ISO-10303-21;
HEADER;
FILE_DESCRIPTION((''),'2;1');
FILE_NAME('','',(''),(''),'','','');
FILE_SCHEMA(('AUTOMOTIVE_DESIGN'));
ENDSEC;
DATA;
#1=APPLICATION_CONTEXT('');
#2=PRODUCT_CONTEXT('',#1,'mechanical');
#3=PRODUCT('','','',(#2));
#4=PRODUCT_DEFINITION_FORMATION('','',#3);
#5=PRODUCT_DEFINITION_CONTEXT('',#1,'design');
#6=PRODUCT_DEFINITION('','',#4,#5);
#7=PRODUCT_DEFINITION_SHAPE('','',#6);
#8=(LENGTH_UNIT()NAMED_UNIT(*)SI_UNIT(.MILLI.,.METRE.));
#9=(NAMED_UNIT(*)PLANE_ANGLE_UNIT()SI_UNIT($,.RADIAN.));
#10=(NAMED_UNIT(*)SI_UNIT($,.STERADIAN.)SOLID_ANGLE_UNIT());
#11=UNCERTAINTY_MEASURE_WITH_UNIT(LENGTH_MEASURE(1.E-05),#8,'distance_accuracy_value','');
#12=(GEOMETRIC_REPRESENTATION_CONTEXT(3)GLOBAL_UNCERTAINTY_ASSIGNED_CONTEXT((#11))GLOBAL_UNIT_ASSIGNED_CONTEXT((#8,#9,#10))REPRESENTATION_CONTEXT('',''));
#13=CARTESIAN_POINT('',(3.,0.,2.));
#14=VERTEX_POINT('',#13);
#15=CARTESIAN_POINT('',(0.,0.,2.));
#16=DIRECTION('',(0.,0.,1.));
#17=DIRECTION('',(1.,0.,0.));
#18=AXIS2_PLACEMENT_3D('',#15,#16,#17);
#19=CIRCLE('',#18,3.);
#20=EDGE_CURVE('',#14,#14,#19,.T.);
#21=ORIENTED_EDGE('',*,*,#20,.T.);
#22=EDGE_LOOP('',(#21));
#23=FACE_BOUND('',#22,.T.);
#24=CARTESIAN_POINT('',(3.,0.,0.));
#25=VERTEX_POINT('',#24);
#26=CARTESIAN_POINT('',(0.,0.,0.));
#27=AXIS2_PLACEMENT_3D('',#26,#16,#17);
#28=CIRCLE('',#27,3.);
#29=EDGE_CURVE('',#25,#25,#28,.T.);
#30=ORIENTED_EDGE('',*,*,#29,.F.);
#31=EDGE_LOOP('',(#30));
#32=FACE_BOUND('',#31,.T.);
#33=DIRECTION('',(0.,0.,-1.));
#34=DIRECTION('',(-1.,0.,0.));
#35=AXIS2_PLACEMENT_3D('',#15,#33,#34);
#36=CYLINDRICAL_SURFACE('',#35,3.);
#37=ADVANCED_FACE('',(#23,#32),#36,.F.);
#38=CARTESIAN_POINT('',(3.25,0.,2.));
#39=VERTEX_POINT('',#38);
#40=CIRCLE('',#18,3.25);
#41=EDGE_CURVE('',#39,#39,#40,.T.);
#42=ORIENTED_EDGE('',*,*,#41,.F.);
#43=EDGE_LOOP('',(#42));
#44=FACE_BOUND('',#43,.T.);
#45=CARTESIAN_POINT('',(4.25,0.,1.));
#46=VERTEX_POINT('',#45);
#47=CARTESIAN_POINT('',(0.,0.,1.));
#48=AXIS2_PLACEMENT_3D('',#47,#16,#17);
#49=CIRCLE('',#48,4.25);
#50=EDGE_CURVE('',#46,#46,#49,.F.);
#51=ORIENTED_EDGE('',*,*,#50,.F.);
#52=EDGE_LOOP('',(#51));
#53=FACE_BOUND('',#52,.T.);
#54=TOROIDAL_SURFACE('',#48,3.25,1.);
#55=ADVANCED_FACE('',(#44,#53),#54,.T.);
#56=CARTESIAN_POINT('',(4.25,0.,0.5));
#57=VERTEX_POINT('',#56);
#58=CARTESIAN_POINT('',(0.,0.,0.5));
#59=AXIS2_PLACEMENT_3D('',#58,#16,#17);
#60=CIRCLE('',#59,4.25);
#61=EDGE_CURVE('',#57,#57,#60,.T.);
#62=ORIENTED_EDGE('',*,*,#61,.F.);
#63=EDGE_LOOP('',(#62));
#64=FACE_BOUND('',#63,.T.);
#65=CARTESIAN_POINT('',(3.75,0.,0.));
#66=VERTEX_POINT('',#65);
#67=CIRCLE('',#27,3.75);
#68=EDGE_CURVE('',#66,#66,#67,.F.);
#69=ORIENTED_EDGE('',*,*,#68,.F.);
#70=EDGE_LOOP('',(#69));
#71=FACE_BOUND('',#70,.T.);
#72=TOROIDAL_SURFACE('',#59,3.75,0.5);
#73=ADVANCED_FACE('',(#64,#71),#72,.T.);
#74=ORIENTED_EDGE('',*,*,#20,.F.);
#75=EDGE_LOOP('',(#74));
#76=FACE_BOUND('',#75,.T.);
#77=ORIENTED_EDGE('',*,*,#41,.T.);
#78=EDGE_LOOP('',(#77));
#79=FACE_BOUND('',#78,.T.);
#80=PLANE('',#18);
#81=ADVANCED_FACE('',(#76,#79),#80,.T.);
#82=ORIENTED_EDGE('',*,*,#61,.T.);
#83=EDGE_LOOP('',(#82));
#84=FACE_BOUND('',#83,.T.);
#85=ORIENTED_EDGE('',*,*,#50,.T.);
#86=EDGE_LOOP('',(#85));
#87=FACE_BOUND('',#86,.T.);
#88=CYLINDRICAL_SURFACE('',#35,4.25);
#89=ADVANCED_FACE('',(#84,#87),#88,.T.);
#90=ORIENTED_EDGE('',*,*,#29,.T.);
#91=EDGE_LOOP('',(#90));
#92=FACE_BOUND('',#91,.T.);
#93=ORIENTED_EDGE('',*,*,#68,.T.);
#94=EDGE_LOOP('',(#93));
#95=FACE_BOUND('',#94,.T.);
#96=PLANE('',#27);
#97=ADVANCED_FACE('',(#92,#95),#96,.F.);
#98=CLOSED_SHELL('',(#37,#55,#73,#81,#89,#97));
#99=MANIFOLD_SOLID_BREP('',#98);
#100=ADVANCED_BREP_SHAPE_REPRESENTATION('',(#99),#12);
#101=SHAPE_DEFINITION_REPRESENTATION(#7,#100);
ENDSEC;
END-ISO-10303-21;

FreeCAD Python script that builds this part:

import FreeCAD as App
import Part
import Sketcher

V = App.Vector


def edges_at(feature, points):
    """Names of the edges that pass closest to the given points."""
    edges = feature.Shape.Edges
    near = lambda p: min(range(len(edges)), key=lambda i: edges[i].distToShape(Part.Vertex(*p))[0])
    return sorted({f"Edge{near(p) + 1}" for p in points})

doc = App.newDocument("Part")
body = doc.addObject("PartDesign::Body", "Body")

# Sketch on XY plane
sketch1 = body.newObject("Sketcher::SketchObject", "Sketch")
sketch1.AttachmentSupport = (doc.getObject("XY_Plane"), [""])
sketch1.MapMode = "FlatFace"
sketch1.addGeometry([
    Part.Circle(V(0, 0, 0), V(0, 0, 1), 4.2),
    Part.Circle(V(0, 0, 0), V(0, 0, 1), 3),
], False)
sketch1.addConstraint([
    Sketcher.Constraint("Coincident", 0, 3, -1, 1),
    Sketcher.Constraint("Coincident", 1, 3, -1, 1),
    Sketcher.Constraint("Diameter", 1, 6.0),
    Sketcher.Constraint("Diameter", 0, 8.5),
])
pad1 = body.newObject("PartDesign::Pad", "Pad")
pad1.Profile = sketch1
pad1.Length = 2
doc.recompute()

fillet = body.newObject("PartDesign::Fillet", "Fillet")
fillet.Base = (pad1, edges_at(pad1, [(-4.25, 0, 2)]))
fillet.Radius = 1
doc.recompute()

fillet2 = body.newObject("PartDesign::Fillet", "Fillet001")
fillet2.Base = (fillet, edges_at(fillet, [(-4.25, 0, 0)]))
fillet2.Radius = 0.5

doc.recompute()
